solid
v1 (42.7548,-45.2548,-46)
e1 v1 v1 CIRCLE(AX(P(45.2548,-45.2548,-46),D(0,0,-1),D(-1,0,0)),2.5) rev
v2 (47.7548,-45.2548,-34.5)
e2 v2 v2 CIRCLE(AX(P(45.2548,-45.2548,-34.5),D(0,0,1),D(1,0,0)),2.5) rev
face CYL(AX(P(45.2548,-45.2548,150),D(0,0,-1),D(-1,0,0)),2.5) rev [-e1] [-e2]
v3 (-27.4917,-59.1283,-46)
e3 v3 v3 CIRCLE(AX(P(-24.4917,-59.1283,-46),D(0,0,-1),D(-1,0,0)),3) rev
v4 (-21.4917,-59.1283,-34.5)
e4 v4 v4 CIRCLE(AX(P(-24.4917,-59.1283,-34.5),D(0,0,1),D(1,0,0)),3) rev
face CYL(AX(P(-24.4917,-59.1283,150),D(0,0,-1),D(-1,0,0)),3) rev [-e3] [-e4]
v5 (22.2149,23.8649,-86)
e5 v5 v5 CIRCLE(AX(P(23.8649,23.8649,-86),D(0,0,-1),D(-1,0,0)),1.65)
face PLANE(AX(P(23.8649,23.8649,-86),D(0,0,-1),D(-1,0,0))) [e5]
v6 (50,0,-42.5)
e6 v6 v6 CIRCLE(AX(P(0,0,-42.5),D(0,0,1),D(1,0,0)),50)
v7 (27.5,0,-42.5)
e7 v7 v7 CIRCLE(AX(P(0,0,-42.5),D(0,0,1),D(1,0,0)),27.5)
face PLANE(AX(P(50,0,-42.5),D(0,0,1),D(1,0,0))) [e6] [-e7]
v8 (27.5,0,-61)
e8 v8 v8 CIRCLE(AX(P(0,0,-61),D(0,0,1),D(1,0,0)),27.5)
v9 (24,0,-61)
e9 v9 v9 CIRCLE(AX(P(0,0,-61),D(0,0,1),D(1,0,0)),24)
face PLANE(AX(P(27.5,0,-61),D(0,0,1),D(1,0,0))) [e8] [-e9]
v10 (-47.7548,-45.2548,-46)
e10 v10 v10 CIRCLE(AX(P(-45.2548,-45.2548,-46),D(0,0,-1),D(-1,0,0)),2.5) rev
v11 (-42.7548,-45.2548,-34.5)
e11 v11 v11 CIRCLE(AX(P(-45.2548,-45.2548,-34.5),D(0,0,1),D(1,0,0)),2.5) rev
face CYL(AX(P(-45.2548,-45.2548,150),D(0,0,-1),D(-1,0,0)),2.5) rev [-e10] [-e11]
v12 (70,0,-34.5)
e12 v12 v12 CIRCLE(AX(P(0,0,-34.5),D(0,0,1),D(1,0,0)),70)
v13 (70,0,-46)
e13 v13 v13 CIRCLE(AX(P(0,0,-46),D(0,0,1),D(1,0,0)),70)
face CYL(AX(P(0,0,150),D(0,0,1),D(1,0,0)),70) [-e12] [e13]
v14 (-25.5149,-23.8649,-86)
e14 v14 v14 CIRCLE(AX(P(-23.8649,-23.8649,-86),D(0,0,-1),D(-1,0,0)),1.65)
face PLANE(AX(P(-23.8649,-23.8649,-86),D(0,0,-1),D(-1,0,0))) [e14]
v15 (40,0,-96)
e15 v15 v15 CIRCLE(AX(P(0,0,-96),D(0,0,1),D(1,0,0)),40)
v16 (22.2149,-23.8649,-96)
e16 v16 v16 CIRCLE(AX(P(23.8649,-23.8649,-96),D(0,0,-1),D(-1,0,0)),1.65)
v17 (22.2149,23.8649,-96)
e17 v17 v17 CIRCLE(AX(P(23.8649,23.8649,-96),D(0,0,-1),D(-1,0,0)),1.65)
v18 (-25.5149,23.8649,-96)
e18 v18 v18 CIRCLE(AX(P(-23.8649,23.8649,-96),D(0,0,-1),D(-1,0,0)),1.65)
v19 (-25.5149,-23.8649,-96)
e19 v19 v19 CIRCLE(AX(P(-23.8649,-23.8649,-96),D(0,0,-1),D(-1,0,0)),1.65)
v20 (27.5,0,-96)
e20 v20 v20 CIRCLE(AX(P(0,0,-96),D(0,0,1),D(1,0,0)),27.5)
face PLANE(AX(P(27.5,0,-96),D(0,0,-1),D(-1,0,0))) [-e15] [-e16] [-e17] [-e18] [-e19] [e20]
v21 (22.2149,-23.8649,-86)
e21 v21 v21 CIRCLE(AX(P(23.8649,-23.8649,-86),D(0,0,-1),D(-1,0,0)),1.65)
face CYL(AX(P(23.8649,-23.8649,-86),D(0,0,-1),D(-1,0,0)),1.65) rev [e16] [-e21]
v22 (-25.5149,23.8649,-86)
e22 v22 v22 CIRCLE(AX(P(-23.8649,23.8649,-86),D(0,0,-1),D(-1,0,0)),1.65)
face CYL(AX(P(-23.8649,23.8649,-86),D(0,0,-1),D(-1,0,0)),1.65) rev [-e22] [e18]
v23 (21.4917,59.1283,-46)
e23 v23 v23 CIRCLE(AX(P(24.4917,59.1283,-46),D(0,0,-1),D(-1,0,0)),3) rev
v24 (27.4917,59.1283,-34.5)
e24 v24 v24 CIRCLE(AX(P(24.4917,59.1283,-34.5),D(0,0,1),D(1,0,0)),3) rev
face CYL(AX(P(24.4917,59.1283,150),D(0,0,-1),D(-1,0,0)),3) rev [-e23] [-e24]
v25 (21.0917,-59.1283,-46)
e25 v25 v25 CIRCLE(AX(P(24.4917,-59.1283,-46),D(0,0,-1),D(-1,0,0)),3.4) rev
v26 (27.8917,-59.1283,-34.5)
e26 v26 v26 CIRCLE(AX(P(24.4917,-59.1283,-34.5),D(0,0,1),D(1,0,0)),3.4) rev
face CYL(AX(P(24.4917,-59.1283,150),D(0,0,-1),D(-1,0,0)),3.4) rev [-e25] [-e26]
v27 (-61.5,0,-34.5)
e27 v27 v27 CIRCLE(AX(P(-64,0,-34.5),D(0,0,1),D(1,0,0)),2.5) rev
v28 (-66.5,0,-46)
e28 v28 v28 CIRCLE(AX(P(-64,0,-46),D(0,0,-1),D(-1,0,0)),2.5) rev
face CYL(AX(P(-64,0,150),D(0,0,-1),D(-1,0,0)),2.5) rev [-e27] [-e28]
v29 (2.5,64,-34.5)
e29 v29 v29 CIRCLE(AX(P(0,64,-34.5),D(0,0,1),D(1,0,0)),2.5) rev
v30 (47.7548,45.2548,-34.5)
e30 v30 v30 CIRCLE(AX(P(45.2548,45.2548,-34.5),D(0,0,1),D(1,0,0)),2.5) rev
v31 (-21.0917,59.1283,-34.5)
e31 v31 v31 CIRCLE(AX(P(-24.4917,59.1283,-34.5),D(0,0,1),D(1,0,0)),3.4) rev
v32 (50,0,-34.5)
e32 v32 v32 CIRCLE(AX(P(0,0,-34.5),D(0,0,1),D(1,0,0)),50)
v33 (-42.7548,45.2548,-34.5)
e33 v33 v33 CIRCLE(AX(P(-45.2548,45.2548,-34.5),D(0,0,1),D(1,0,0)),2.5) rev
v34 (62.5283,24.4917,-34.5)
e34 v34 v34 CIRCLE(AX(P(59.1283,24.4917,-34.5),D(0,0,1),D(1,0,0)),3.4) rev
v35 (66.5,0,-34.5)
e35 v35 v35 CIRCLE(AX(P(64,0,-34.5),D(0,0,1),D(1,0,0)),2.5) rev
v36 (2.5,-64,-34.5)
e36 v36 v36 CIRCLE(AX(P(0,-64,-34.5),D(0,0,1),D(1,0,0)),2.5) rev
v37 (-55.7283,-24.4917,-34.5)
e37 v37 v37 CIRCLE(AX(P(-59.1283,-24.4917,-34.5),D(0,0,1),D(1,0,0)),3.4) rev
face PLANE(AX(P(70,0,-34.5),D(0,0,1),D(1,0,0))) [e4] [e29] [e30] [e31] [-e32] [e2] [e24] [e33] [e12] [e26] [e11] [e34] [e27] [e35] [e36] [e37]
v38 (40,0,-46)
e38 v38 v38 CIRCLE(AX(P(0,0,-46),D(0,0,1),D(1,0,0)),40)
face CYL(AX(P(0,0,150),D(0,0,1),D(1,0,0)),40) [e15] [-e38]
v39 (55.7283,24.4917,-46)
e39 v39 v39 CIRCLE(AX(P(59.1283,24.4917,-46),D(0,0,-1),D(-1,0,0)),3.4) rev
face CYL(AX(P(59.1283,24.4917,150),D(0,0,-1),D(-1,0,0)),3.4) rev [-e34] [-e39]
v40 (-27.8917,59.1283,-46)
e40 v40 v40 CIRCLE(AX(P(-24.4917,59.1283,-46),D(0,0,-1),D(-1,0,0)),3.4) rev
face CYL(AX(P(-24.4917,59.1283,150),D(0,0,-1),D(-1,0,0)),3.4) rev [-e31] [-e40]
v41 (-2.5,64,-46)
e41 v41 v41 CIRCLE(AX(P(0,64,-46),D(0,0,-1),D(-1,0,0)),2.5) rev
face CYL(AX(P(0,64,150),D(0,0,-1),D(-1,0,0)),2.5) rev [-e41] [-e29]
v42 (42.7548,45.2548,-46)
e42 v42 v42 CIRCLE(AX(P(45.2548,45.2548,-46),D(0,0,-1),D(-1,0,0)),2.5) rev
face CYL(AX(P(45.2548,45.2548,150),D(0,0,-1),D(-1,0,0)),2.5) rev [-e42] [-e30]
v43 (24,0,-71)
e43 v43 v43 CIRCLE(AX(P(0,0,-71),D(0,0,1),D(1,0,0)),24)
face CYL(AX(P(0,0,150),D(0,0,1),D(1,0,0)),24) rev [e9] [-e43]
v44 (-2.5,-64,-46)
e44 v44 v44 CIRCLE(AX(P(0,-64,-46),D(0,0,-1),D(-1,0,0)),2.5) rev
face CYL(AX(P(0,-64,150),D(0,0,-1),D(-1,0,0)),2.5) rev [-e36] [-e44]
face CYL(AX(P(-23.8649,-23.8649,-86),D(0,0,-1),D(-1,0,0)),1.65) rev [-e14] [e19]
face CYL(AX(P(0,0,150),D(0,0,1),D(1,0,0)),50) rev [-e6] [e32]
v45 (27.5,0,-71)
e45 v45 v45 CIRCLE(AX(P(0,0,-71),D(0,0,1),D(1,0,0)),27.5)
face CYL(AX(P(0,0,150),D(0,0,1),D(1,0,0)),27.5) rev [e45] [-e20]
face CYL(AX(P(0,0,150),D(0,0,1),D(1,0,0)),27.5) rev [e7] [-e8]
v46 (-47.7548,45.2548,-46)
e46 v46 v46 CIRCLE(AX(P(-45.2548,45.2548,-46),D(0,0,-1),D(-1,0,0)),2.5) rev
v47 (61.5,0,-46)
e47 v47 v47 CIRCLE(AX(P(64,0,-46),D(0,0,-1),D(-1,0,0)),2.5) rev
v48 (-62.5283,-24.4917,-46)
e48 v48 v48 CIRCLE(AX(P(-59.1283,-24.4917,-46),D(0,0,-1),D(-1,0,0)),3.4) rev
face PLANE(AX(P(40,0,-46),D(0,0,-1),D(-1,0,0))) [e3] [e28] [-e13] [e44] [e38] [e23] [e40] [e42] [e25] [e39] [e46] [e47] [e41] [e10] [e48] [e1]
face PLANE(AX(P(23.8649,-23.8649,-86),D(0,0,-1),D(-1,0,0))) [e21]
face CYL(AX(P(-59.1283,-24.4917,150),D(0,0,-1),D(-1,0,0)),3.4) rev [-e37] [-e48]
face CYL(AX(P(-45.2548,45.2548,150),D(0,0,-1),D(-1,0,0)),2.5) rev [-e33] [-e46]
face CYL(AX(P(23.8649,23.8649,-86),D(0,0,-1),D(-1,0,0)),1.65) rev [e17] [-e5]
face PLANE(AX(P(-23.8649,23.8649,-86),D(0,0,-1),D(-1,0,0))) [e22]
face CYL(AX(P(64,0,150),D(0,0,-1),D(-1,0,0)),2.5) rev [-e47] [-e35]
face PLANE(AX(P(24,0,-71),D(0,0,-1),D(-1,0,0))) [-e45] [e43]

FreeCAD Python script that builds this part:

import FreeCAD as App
import Part
import Sketcher
from FreeCAD import Vector

doc = App.newDocument("Part")
params = doc.addObject("Spreadsheet::Sheet", "Params")
for row, (alias, value) in enumerate([
    ("sketch1_width", "20 mm"),
    ("sketch1_width2", "30 mm"),
    ("sketch1_height", "25 mm"),
    ("sketch1_height2", "10 mm"),
    ("sketch1_height3", "8 mm"),
    ("revolution_angle", "360 deg"),
    ("sketch2_diameter", "5 mm"),
    ("sketch2_diameter2", "6 mm"),
    ("sketch2_diameter3", "6.8 mm"),
    ("pocket1_length", "300 mm"),
    ("sketch3_diameter", "3.3 mm"),
    ("pocket2_length", "10 mm"),
], start=1):
    params.set(f"A{row}", alias)
    params.set(f"B{row}", "=" + value)
    params.setAlias(f"B{row}", alias)

body = doc.addObject("PartDesign::Body", "Body")

# Sketch on XZ plane
sketch1 = body.newObject("Sketcher::SketchObject", "Sketch")
sketch1.AttachmentSupport = (doc.getObject("XZ_Plane"), [""])
sketch1.MapMode = "FlatFace"
sketch1.addGeometry([
    Part.LineSegment(Vector(40, -96, 0), Vector(27.5, -96, 0)),  # 0
    Part.LineSegment(Vector(27.5, -96, 0), Vector(27.5, -71, 0)),  # 1
    Part.LineSegment(Vector(27.5, -71, 0), Vector(24, -71, 0)),  # 2
    Part.LineSegment(Vector(24, -71, 0), Vector(24, -61, 0)),  # 3
    Part.LineSegment(Vector(24, -61, 0), Vector(27.5, -61, 0)),  # 4
    Part.LineSegment(Vector(27.5, -61, 0), Vector(27.5, -42.5, 0)),  # 5
    Part.LineSegment(Vector(27.5, -42.5, 0), Vector(50, -42.5, 0)),  # 6
    Part.LineSegment(Vector(50, -42.5, 0), Vector(50, -34.5, 0)),  # 7
    Part.LineSegment(Vector(50, -34.5, 0), Vector(70, -34.5, 0)),  # 8
    Part.LineSegment(Vector(70, -34.5, 0), Vector(70, -46, 0)),  # 9
    Part.LineSegment(Vector(70, -46, 0), Vector(40, -46, 0)),  # 10
    Part.LineSegment(Vector(40, -46, 0), Vector(40, -96, 0)),  # 11
], False)
sketch1.addConstraint([
    Sketcher.Constraint("Coincident", 0, 2, 1, 1),
    Sketcher.Constraint("Coincident", 1, 2, 2, 1),
    Sketcher.Constraint("Coincident", 2, 2, 3, 1),
    Sketcher.Constraint("Coincident", 3, 2, 4, 1),
    Sketcher.Constraint("Coincident", 4, 2, 5, 1),
    Sketcher.Constraint("Coincident", 5, 2, 6, 1),
    Sketcher.Constraint("Coincident", 6, 2, 7, 1),
    Sketcher.Constraint("Coincident", 7, 2, 8, 1),
    Sketcher.Constraint("Coincident", 8, 2, 9, 1),
    Sketcher.Constraint("Coincident", 9, 2, 10, 1),
    Sketcher.Constraint("Coincident", 10, 2, 11, 1),
    Sketcher.Constraint("Coincident", 11, 2, 0, 1),
    Sketcher.Constraint("Horizontal", 0),
    Sketcher.Constraint("Vertical", 1),
    Sketcher.Constraint("Horizontal", 2),
    Sketcher.Constraint("Vertical", 3),
    Sketcher.Constraint("Horizontal", 4),
    Sketcher.Constraint("Vertical", 5),
    Sketcher.Constraint("Horizontal", 6),
    Sketcher.Constraint("Vertical", 7),
    Sketcher.Constraint("Horizontal", 8),
    Sketcher.Constraint("Vertical", 9),
    Sketcher.Constraint("Horizontal", 10),
    Sketcher.Constraint("Vertical", 11),
    Sketcher.Constraint("Vertical", 1, 2, 4, 2),
    Sketcher.Constraint("DistanceX", 8, 1, 8, 2, 20.0),
    Sketcher.Constraint("DistanceX", 10, 2, 10, 1, 30.0),
    Sketcher.Constraint("DistanceY", 1, 1, 1, 2, 25.0),
    Sketcher.Constraint("DistanceY", 3, 1, 3, 2, 10.0),
    Sketcher.Constraint("DistanceY", 7, 1, 7, 2, 8.0),
    Sketcher.Constraint("DistanceY", 11, 2, 11, 1, 50.0),
    Sketcher.Constraint("DistanceX", 0, 2, 0, 1, 12.5),
    Sketcher.Constraint("DistanceX", 2, 2, 2, 1, 3.5),
    Sketcher.Constraint("DistanceY", 5, 1, 5, 2, 18.5),
    Sketcher.Constraint("DistanceY", 0, 2, -1, 1, 96.0),
    Sketcher.Constraint("DistanceX", -1, 1, 2, 2, 24.0),
])
sketch1.setExpression("Constraints[25]", "Params.sketch1_width")
sketch1.setExpression("Constraints[26]", "Params.sketch1_width2")
sketch1.setExpression("Constraints[27]", "Params.sketch1_height")
sketch1.setExpression("Constraints[28]", "Params.sketch1_height2")
sketch1.setExpression("Constraints[29]", "Params.sketch1_height3")
revolution = body.newObject("PartDesign::Revolution", "Revolution")
revolution.Profile = sketch1
revolution.ReferenceAxis = (sketch1, ["V_Axis"])
revolution.setExpression("Angle", "Params.revolution_angle")

# Sketch on XY plane
sketch2 = body.newObject("Sketcher::SketchObject", "Sketch001")
sketch2.AttachmentSupport = (doc.getObject("XY_Plane"), [""])
sketch2.MapMode = "FlatFace"
sketch2.addGeometry([
    Part.Circle(Vector(64, 0, 0), Vector(0, 0, 1), 2.5),  # 0
    Part.Circle(Vector(45.2548, 45.2548, 0), Vector(0, 0, 1), 2.5),  # 1
    Part.Circle(Vector(0, 64, 0), Vector(0, 0, 1), 2.5),  # 2
    Part.Circle(Vector(-45.2548, 45.2548, 0), Vector(0, 0, 1), 2.5),  # 3
    Part.Circle(Vector(-64, 0, 0), Vector(0, 0, 1), 2.5),  # 4
    Part.Circle(Vector(-45.2548, -45.2548, 0), Vector(0, 0, 1), 2.5),  # 5
    Part.Circle(Vector(0, -64, 0), Vector(0, 0, 1), 2.5),  # 6
    Part.Circle(Vector(45.2548, -45.2548, 0), Vector(0, 0, 1), 2.5),  # 7
    Part.Circle(Vector(24.4917, 59.1283, 0), Vector(0, 0, 1), 3),  # 8
    Part.Circle(Vector(-24.4917, -59.1283, 0), Vector(0, 0, 1), 3),  # 9
    Part.Circle(Vector(59.1283, 24.4917, 0), Vector(0, 0, 1), 3.4),  # 10
    Part.Circle(Vector(-24.4917, 59.1283, 0), Vector(0, 0, 1), 3.4),  # 11
    Part.Circle(Vector(-59.1283, -24.4917, 0), Vector(0, 0, 1), 3.4),  # 12
    Part.Circle(Vector(24.4917, -59.1283, 0), Vector(0, 0, 1), 3.4),  # 13
], False)
sketch2.addConstraint([
    Sketcher.Constraint("Equal", 0, 1),
    Sketcher.Constraint("Equal", 1, 2),
    Sketcher.Constraint("Equal", 2, 3),
    Sketcher.Constraint("Equal", 3, 4),
    Sketcher.Constraint("Equal", 4, 5),
    Sketcher.Constraint("Equal", 5, 6),
    Sketcher.Constraint("Equal", 6, 7),
    Sketcher.Constraint("Equal", 8, 9),
    Sketcher.Constraint("Equal", 10, 11),
    Sketcher.Constraint("Equal", 11, 12),
    Sketcher.Constraint("Equal", 12, 13),
    Sketcher.Constraint("Symmetric", 0, 3, 4, 3, -1, 1),
    Sketcher.Constraint("Symmetric", 1, 3, 5, 3, -1, 1),
    Sketcher.Constraint("Symmetric", 2, 3, 6, 3, -1, 1),
    Sketcher.Constraint("Symmetric", 3, 3, 7, 3, -1, 1),
    Sketcher.Constraint("Symmetric", 8, 3, 9, 3, -1, 1),
    Sketcher.Constraint("Symmetric", 10, 3, 12, 3, -1, 1),
    Sketcher.Constraint("Symmetric", 11, 3, 13, 3, -1, 1),
    Sketcher.Constraint("Symmetric", 1, 3, 3, 3, -2),
    Sketcher.Constraint("Symmetric", 8, 3, 11, 3, -2),
    Sketcher.Constraint("PointOnObject", 0, 3, -1),
    Sketcher.Constraint("PointOnObject", 2, 3, -2),
    Sketcher.Constraint("Diameter", 0, 5.0),
    Sketcher.Constraint("Diameter", 8, 6.0),
    Sketcher.Constraint("Diameter", 10, 6.8),
    Sketcher.Constraint("DistanceX", -1, 1, 0, 3, 64.0),
    Sketcher.Constraint("DistanceY", -1, 1, 2, 3, 64.0),
    Sketcher.Constraint("DistanceX", -1, 1, 1, 3, 45.2548),
    Sketcher.Constraint("DistanceY", -1, 1, 1, 3, 45.2548),
    Sketcher.Constraint("DistanceX", -1, 1, 8, 3, 24.4917),
    Sketcher.Constraint("DistanceY", -1, 1, 8, 3, 59.1283),
    Sketcher.Constraint("DistanceX", -1, 1, 10, 3, 59.1283),
    Sketcher.Constraint("DistanceY", -1, 1, 10, 3, 24.4917),
])
sketch2.setExpression("Constraints[22]", "Params.sketch2_diameter")
sketch2.setExpression("Constraints[23]", "Params.sketch2_diameter2")
sketch2.setExpression("Constraints[24]", "Params.sketch2_diameter3")
pocket1 = body.newObject("PartDesign::Pocket", "Pocket")
pocket1.Profile = sketch2
pocket1.setExpression("Length", "Params.pocket1_length")
pocket1.Midplane = True

# Sketch on XY plane
sketch3 = body.newObject("Sketcher::SketchObject", "Sketch002")
sketch3.AttachmentSupport = (doc.getObject("XY_Plane"), [""])
sketch3.MapMode = "FlatFace"
sketch3.AttachmentOffset = App.Placement(Vector(0, 0, -96), App.Rotation())
sketch3.addGeometry([
    Part.Circle(Vector(-23.8649, 23.8649, 0), Vector(0, 0, 1), 1.65),
    Part.Circle(Vector(23.8649, 23.8649, 0), Vector(0, 0, 1), 1.65),
    Part.Circle(Vector(23.8649, -23.8649, 0), Vector(0, 0, 1), 1.65),
    Part.Circle(Vector(-23.8649, -23.8649, 0), Vector(0, 0, 1), 1.65),
], False)
sketch3.addConstraint([
    Sketcher.Constraint("Equal", 0, 1),
    Sketcher.Constraint("Equal", 1, 2),
    Sketcher.Constraint("Equal", 2, 3),
    Sketcher.Constraint("Symmetric", 0, 3, 2, 3, -1, 1),
    Sketcher.Constraint("Symmetric", 1, 3, 3, 3, -1, 1),
    Sketcher.Constraint("Symmetric", 0, 3, 1, 3, -2),
    Sketcher.Constraint("Diameter", 0, 3.3),
    Sketcher.Constraint("DistanceX", 0, 3, -1, 1, 23.8649),
    Sketcher.Constraint("DistanceY", -1, 1, 0, 3, 23.8649),
])
sketch3.setExpression("Constraints[6]", "Params.sketch3_diameter")
pocket2 = body.newObject("PartDesign::Pocket", "Pocket001")
pocket2.Profile = sketch3
pocket2.setExpression("Length", "Params.pocket2_length")
pocket2.Reversed = True

doc.recompute()
